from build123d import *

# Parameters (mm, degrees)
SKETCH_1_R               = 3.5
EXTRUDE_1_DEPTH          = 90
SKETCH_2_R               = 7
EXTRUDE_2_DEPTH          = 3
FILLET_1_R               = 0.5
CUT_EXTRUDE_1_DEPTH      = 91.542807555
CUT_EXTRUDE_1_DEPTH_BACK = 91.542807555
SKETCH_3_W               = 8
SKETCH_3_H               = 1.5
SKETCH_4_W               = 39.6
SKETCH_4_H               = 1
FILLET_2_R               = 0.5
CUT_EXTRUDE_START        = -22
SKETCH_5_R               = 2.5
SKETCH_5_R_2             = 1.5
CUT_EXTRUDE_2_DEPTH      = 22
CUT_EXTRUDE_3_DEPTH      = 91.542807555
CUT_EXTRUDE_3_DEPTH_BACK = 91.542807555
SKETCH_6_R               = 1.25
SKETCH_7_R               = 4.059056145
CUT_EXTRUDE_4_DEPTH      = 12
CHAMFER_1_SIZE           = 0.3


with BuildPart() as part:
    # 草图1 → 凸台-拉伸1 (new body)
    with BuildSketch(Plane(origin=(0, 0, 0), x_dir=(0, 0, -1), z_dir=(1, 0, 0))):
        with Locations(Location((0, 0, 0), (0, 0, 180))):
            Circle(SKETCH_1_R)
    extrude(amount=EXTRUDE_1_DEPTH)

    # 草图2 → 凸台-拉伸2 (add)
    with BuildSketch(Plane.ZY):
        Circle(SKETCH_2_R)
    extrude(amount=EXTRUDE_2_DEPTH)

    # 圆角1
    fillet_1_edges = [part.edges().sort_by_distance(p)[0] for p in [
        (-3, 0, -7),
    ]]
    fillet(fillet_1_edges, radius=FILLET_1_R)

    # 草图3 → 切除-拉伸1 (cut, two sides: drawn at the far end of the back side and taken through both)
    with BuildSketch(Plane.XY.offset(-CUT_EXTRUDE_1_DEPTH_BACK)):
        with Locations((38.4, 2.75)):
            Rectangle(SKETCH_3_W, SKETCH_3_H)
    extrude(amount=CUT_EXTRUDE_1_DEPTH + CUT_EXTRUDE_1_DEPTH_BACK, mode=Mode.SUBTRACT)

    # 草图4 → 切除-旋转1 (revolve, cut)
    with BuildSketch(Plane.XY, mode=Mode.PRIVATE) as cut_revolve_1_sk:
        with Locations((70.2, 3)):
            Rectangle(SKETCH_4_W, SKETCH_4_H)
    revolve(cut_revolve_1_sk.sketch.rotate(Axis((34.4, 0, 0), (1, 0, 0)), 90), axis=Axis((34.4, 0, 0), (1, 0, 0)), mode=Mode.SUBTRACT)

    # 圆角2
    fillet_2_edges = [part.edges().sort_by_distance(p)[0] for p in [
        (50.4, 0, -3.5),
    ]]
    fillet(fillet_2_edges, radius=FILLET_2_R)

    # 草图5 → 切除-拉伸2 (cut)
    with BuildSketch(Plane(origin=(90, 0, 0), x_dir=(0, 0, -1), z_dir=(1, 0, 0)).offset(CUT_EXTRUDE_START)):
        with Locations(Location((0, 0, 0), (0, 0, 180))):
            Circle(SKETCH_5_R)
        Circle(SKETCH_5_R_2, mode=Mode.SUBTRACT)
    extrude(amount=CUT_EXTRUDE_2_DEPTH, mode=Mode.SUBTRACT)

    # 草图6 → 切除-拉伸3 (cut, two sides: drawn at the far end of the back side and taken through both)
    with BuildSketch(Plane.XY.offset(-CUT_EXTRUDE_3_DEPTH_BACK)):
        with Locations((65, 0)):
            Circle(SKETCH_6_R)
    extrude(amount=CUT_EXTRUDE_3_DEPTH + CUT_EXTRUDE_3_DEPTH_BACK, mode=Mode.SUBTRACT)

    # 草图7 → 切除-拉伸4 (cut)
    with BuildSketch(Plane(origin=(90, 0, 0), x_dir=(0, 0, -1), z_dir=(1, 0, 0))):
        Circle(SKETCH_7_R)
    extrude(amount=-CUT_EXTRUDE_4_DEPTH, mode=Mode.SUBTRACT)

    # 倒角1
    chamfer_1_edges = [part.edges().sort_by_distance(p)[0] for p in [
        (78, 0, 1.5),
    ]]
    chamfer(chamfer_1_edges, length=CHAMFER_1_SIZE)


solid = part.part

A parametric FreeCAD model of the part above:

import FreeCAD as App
import Part
import Sketcher
from FreeCAD import Vector


def edges_at(feature, points):
    """Names of the edges that pass closest to the given points."""
    edges = feature.Shape.Edges
    near = lambda p: min(range(len(edges)), key=lambda i: edges[i].distToShape(Part.Vertex(*p))[0])
    return sorted({f"Edge{near(p) + 1}" for p in points})

doc = App.newDocument("Part")
body = doc.addObject("PartDesign::Body", "Body")

# Sketch on YZ plane
sketch1 = body.newObject("Sketcher::SketchObject", "Sketch")
sketch1.AttachmentSupport = (doc.getObject("YZ_Plane"), [""])
sketch1.MapMode = "FlatFace"
sketch1.addGeometry(Part.Circle(Vector(0, 0, 0), Vector(0, 0, 1), 3.5), False)
sketch1.addConstraint(Sketcher.Constraint("Coincident", 0, 3, -1, 1))
sketch1.addConstraint(Sketcher.Constraint("Diameter", 0, 7.0))
pad1 = body.newObject("PartDesign::Pad", "Pad")
pad1.Profile = sketch1
pad1.Length = 90

# Sketch on YZ plane
sketch2 = body.newObject("Sketcher::SketchObject", "Sketch001")
sketch2.AttachmentSupport = (doc.getObject("YZ_Plane"), [""])
sketch2.MapMode = "FlatFace"
sketch2.addGeometry(Part.Circle(Vector(0, 0, 0), Vector(0, 0, 1), 7), False)
sketch2.addConstraint(Sketcher.Constraint("Coincident", 0, 3, -1, 1))
sketch2.addConstraint(Sketcher.Constraint("Diameter", 0, 14.0))
pad2 = body.newObject("PartDesign::Pad", "Pad001")
pad2.Profile = sketch2
pad2.Length = 3
pad2.Reversed = True
doc.recompute()

fillet = body.newObject("PartDesign::Fillet", "Fillet")
fillet.Base = (pad2, edges_at(pad2, [(-3, 0, -7)]))
fillet.Radius = 0.5

# Sketch on XY plane
sketch3 = body.newObject("Sketcher::SketchObject", "Sketch002")
sketch3.AttachmentSupport = (doc.getObject("XY_Plane"), [""])
sketch3.MapMode = "FlatFace"
sketch3.addGeometry(Part.LineSegment(Vector(34.4, 3.5, 0), Vector(34.4, 2, 0)), False)
sketch3.addGeometry(Part.LineSegment(Vector(34.4, 2, 0), Vector(42.4, 2, 0)), False)
sketch3.addGeometry(Part.LineSegment(Vector(42.4, 2, 0), Vector(42.4, 3.5, 0)), False)
sketch3.addGeometry(Part.LineSegment(Vector(42.4, 3.5, 0), Vector(34.4, 3.5, 0)), False)
sketch3.addConstraint(Sketcher.Constraint("Coincident", 0, 2, 1, 1))
sketch3.addConstraint(Sketcher.Constraint("Coincident", 1, 2, 2, 1))
sketch3.addConstraint(Sketcher.Constraint("Coincident", 2, 2, 3, 1))
sketch3.addConstraint(Sketcher.Constraint("Coincident", 3, 2, 0, 1))
sketch3.addConstraint(Sketcher.Constraint("Vertical", 0))
sketch3.addConstraint(Sketcher.Constraint("Horizontal", 1))
sketch3.addConstraint(Sketcher.Constraint("Vertical", 2))
sketch3.addConstraint(Sketcher.Constraint("Horizontal", 3))
sketch3.addConstraint(Sketcher.Constraint("DistanceX", 1, 1, 1, 2, 8.0))
sketch3.addConstraint(Sketcher.Constraint("DistanceY", 0, 2, 0, 1, 1.5))
sketch3.addConstraint(Sketcher.Constraint("DistanceY", -1, 1, 0, 2, 2.0))
sketch3.addConstraint(Sketcher.Constraint("DistanceX", -1, 1, 0, 2, 34.4))
pocket1 = body.newObject("PartDesign::Pocket", "Pocket")
pocket1.Profile = sketch3
pocket1.Type = "ThroughAll"
pocket1.Midplane = True

# Sketch on XY plane
sketch4 = body.newObject("Sketcher::SketchObject", "Sketch003")
sketch4.AttachmentSupport = (doc.getObject("XY_Plane"), [""])
sketch4.MapMode = "FlatFace"
sketch4.addGeometry(Part.LineSegment(Vector(50.4, 3.5, 0), Vector(50.4, 2.5, 0)), False)
sketch4.addGeometry(Part.LineSegment(Vector(50.4, 2.5, 0), Vector(90, 2.5, 0)), False)
sketch4.addGeometry(Part.LineSegment(Vector(90, 2.5, 0), Vector(90, 3.5, 0)), False)
sketch4.addGeometry(Part.LineSegment(Vector(90, 3.5, 0), Vector(50.4, 3.5, 0)), False)
sketch4.addConstraint(Sketcher.Constraint("Coincident", 0, 2, 1, 1))
sketch4.addConstraint(Sketcher.Constraint("Coincident", 1, 2, 2, 1))
sketch4.addConstraint(Sketcher.Constraint("Coincident", 2, 2, 3, 1))
sketch4.addConstraint(Sketcher.Constraint("Coincident", 3, 2, 0, 1))
sketch4.addConstraint(Sketcher.Constraint("Vertical", 0))
sketch4.addConstraint(Sketcher.Constraint("Horizontal", 1))
sketch4.addConstraint(Sketcher.Constraint("Vertical", 2))
sketch4.addConstraint(Sketcher.Constraint("Horizontal", 3))
sketch4.addConstraint(Sketcher.Constraint("DistanceY", 0, 2, 0, 1, 1.0))
sketch4.addConstraint(Sketcher.Constraint("DistanceX", 1, 1, 1, 2, 39.6))
sketch4.addConstraint(Sketcher.Constraint("DistanceX", -1, 1, 1, 2, 90.0))
sketch4.addConstraint(Sketcher.Constraint("DistanceY", -1, 1, 0, 2, 2.5))
groove = body.newObject("PartDesign::Groove", "Groove")
groove.Profile = sketch4
groove.ReferenceAxis = (sketch4, ["H_Axis"])
groove.Angle = 360
doc.recompute()

fillet2 = body.newObject("PartDesign::Fillet", "Fillet001")
fillet2.Base = (groove, edges_at(groove, [(50.4, 0, -3.5)]))
fillet2.Radius = 0.5

# Sketch on YZ plane
sketch5 = body.newObject("Sketcher::SketchObject", "Sketch004")
sketch5.AttachmentSupport = (doc.getObject("YZ_Plane"), [""])
sketch5.MapMode = "FlatFace"
sketch5.AttachmentOffset = App.Placement(Vector(0, 0, 68), App.Rotation())
sketch5.addGeometry(Part.Circle(Vector(0, 0, 0), Vector(0, 0, 1), 2.5), False)
sketch5.addGeometry(Part.Circle(Vector(0, 0, 0), Vector(0, 0, 1), 1.5), False)
sketch5.addConstraint(Sketcher.Constraint("Coincident", 0, 3, -1, 1))
sketch5.addConstraint(Sketcher.Constraint("Coincident", 1, 3, -1, 1))
sketch5.addConstraint(Sketcher.Constraint("Diameter", 0, 5.0))
sketch5.addConstraint(Sketcher.Constraint("Diameter", 1, 3.0))
pocket2 = body.newObject("PartDesign::Pocket", "Pocket001")
pocket2.Profile = sketch5
pocket2.Length = 22
pocket2.Reversed = True

# Sketch on XY plane
sketch6 = body.newObject("Sketcher::SketchObject", "Sketch005")
sketch6.AttachmentSupport = (doc.getObject("XY_Plane"), [""])
sketch6.MapMode = "FlatFace"
sketch6.addGeometry(Part.Circle(Vector(65, 0, 0), Vector(0, 0, 1), 1.25), False)
sketch6.addConstraint(Sketcher.Constraint("PointOnObject", 0, 3, -1))
sketch6.addConstraint(Sketcher.Constraint("Diameter", 0, 2.5))
sketch6.addConstraint(Sketcher.Constraint("DistanceX", -1, 1, 0, 3, 65.0))
pocket3 = body.newObject("PartDesign::Pocket", "Pocket002")
pocket3.Profile = sketch6
pocket3.Type = "ThroughAll"
pocket3.Midplane = True

# Sketch on YZ plane
sketch7 = body.newObject("Sketcher::SketchObject", "Sketch006")
sketch7.AttachmentSupport = (doc.getObject("YZ_Plane"), [""])
sketch7.MapMode = "FlatFace"
sketch7.AttachmentOffset = App.Placement(Vector(0, 0, 90), App.Rotation())
sketch7.addGeometry(Part.Circle(Vector(0, 0, 0), Vector(0, 0, 1), 4.059056), False)
sketch7.addConstraint(Sketcher.Constraint("Coincident", 0, 3, -1, 1))
sketch7.addConstraint(Sketcher.Constraint("Diameter", 0, 8.118112))
pocket4 = body.newObject("PartDesign::Pocket", "Pocket003")
pocket4.Profile = sketch7
pocket4.Length = 12
doc.recompute()

chamfer = body.newObject("PartDesign::Chamfer", "Chamfer")
chamfer.Base = (pocket4, edges_at(pocket4, [(78, 0, 1.5)]))
chamfer.Size = 0.3

doc.recompute()
